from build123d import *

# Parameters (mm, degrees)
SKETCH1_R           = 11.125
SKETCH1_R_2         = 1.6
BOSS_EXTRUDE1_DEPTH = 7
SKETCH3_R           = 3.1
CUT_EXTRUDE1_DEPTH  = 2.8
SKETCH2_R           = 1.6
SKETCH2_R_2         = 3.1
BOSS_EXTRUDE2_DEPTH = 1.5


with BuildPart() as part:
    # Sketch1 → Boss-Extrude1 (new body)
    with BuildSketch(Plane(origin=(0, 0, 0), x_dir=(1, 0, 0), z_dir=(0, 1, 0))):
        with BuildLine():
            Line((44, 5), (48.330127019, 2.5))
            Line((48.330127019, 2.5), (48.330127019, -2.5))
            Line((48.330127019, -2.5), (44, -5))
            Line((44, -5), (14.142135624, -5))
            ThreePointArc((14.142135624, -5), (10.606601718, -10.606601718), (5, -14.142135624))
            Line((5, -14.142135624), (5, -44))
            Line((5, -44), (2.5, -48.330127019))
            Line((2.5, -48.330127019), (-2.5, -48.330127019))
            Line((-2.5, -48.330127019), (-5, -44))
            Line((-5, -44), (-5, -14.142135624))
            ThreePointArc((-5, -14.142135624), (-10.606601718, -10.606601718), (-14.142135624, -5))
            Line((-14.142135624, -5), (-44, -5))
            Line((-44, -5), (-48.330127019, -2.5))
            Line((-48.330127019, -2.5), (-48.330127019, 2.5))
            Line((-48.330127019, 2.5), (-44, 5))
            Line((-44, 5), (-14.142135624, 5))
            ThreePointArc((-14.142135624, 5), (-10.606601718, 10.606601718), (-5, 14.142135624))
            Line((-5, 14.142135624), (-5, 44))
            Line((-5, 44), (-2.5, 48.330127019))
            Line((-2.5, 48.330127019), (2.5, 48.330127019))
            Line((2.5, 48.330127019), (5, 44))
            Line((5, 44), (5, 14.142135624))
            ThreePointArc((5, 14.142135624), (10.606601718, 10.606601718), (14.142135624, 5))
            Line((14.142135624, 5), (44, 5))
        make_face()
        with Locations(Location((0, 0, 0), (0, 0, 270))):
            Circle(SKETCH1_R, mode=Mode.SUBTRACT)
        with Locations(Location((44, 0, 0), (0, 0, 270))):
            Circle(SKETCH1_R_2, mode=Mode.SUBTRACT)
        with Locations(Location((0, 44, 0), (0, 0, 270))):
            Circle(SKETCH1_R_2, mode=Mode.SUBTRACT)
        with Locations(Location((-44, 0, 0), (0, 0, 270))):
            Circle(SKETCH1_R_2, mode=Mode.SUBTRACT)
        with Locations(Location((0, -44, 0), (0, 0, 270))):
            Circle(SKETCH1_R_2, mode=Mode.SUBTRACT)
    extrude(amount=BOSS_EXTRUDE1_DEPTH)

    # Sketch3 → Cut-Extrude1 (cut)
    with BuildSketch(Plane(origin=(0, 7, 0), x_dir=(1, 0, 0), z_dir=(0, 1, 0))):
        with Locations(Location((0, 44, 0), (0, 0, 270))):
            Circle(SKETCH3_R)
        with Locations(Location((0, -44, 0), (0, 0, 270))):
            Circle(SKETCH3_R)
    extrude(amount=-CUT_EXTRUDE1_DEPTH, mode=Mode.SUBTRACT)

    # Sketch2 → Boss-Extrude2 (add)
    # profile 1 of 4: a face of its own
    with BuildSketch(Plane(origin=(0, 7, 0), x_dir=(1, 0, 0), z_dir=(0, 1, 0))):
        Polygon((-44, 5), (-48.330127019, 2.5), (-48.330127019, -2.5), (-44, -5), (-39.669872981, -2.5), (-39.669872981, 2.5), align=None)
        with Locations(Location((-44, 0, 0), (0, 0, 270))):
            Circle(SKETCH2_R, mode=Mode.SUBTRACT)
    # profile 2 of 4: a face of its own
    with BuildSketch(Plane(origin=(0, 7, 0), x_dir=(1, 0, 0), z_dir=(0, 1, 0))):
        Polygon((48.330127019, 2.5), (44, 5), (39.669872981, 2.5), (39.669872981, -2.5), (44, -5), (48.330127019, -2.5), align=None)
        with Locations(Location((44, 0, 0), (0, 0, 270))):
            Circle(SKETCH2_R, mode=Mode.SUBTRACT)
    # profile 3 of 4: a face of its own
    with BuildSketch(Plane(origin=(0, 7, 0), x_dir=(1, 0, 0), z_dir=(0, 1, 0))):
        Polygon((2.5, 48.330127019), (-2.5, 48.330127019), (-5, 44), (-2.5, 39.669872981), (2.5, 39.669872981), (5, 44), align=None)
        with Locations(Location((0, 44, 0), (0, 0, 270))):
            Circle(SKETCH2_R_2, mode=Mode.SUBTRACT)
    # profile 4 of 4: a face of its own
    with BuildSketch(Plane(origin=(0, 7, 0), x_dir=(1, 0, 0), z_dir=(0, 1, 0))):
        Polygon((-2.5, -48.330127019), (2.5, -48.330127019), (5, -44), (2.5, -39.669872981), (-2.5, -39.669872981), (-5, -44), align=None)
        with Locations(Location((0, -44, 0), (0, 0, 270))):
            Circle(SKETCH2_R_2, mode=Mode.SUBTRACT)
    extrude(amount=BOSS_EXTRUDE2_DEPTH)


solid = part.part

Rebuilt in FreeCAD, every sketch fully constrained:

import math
import FreeCAD as App
import Part
import Sketcher
from FreeCAD import Vector
Q = App.Units.Quantity


def add_polygon(sketch, points):
    """Adds a closed chain of lines whose ends are joined by coincident constraints."""
    first, n = sketch.GeometryCount, len(points)
    for a, b in zip(points, points[1:] + points[:1]):
        sketch.addGeometry(Part.LineSegment(App.Vector(*a, 0), App.Vector(*b, 0)), False)
    for i in range(n):
        sketch.addConstraint(Sketcher.Constraint("Coincident", first + i, 2, first + (i + 1) % n, 1))

doc = App.newDocument("Part")
params = doc.addObject("Spreadsheet::Sheet", "Params")
for row, (alias, value) in enumerate([
    ("sketch1_radius", "15 mm"),
    ("sketch1_diameter", "3.2 mm"),
    ("sketch1_diameter2", "22.25 mm"),
    ("sketch1_width", "5 mm"),
    ("sketch1_length", "5 mm"),
    ("pad1_length", "7 mm"),
    ("sketch2_diameter", "6.2 mm"),
    ("pocket1_length", "2.8 mm"),
    ("sketch3_diameter", "3.2 mm"),
    ("sketch3_diameter2", "6.2 mm"),
    ("sketch3_width", "5 mm"),
    ("sketch3_length", "5 mm"),
    ("pad2_length", "1.5 mm"),
], start=1):
    params.set(f"A{row}", alias)
    params.set(f"B{row}", "=" + value)
    params.setAlias(f"B{row}", alias)

body = doc.addObject("PartDesign::Body", "Body")

# Sketch on XZ plane
sketch1 = body.newObject("Sketcher::SketchObject", "Sketch")
sketch1.AttachmentSupport = (doc.getObject("XZ_Plane"), [""])
sketch1.MapMode = "FlatFace"
sketch1.addGeometry(Part.LineSegment(Vector(48.3, -2.5, 0), Vector(44, -5, 0)), False)
sketch1.addGeometry(Part.LineSegment(Vector(44, -5, 0), Vector(14.1, -5, 0)), False)
sketch1.addGeometry(Part.ArcOfCircle(Part.Circle(Vector(0, 0, 0), Vector(0, 0, 1), 15), math.radians(-71), math.radians(-19)), False)
sketch1.addGeometry(Part.LineSegment(Vector(5, -14.1, 0), Vector(5, -44, 0)), False)
sketch1.addGeometry(Part.LineSegment(Vector(5, -44, 0), Vector(2.5, -48.3, 0)), False)
sketch1.addGeometry(Part.LineSegment(Vector(2.5, -48.3, 0), Vector(-2.5, -48.3, 0)), False)
sketch1.addGeometry(Part.LineSegment(Vector(-2.5, -48.3, 0), Vector(-5, -44, 0)), False)
sketch1.addGeometry(Part.LineSegment(Vector(-5, -44, 0), Vector(-5, -14.1, 0)), False)
sketch1.addGeometry(Part.ArcOfCircle(Part.Circle(Vector(0, 0, 0), Vector(0, 0, 1), 15), math.radians(-161), math.radians(-109)), False)
sketch1.addGeometry(Part.LineSegment(Vector(-14.1, -5, 0), Vector(-44, -5, 0)), False)
sketch1.addGeometry(Part.LineSegment(Vector(-44, -5, 0), Vector(-48.3, -2.5, 0)), False)
sketch1.addGeometry(Part.LineSegment(Vector(-48.3, -2.5, 0), Vector(-48.3, 2.5, 0)), False)
sketch1.addGeometry(Part.LineSegment(Vector(-48.3, 2.5, 0), Vector(-44, 5, 0)), False)
sketch1.addGeometry(Part.LineSegment(Vector(-44, 5, 0), Vector(-14.1, 5, 0)), False)
sketch1.addGeometry(Part.ArcOfCircle(Part.Circle(Vector(0, 0, 0), Vector(0, 0, 1), 15), math.radians(109), math.radians(161)), False)
sketch1.addGeometry(Part.LineSegment(Vector(-5, 14.1, 0), Vector(-5, 44, 0)), False)
sketch1.addGeometry(Part.LineSegment(Vector(-5, 44, 0), Vector(-2.5, 48.3, 0)), False)
sketch1.addGeometry(Part.LineSegment(Vector(-2.5, 48.3, 0), Vector(2.5, 48.3, 0)), False)
sketch1.addGeometry(Part.LineSegment(Vector(2.5, 48.3, 0), Vector(5, 44, 0)), False)
sketch1.addGeometry(Part.LineSegment(Vector(5, 44, 0), Vector(5, 14.1, 0)), False)
sketch1.addGeometry(Part.ArcOfCircle(Part.Circle(Vector(0, 0, 0), Vector(0, 0, 1), 15), math.radians(19), math.radians(71)), False)
sketch1.addGeometry(Part.LineSegment(Vector(14.1, 5, 0), Vector(44, 5, 0)), False)
sketch1.addGeometry(Part.LineSegment(Vector(44, 5, 0), Vector(48.3, 2.5, 0)), False)
sketch1.addGeometry(Part.LineSegment(Vector(48.3, 2.5, 0), Vector(48.3, -2.5, 0)), False)
sketch1.addGeometry(Part.Circle(Vector(0, 44, 0), Vector(0, 0, 1), 1.6), False)
sketch1.addGeometry(Part.Circle(Vector(44, 0, 0), Vector(0, 0, 1), 1.6), False)
sketch1.addGeometry(Part.Circle(Vector(0, 0, 0), Vector(0, 0, 1), 11.1), False)
sketch1.addGeometry(Part.Circle(Vector(-44, 0, 0), Vector(0, 0, 1), 1.6), False)
sketch1.addGeometry(Part.Circle(Vector(0, -44, 0), Vector(0, 0, 1), 1.6), False)
sketch1.addConstraint(Sketcher.Constraint("Coincident", 0, 2, 1, 1))
sketch1.addConstraint(Sketcher.Constraint("Coincident", 1, 2, 2, 2))
sketch1.addConstraint(Sketcher.Constraint("Coincident", 2, 1, 3, 1))
sketch1.addConstraint(Sketcher.Constraint("Coincident", 3, 2, 4, 1))
sketch1.addConstraint(Sketcher.Constraint("Coincident", 4, 2, 5, 1))
sketch1.addConstraint(Sketcher.Constraint("Coincident", 5, 2, 6, 1))
sketch1.addConstraint(Sketcher.Constraint("Coincident", 6, 2, 7, 1))
sketch1.addConstraint(Sketcher.Constraint("Coincident", 7, 2, 8, 2))
sketch1.addConstraint(Sketcher.Constraint("Coincident", 8, 1, 9, 1))
sketch1.addConstraint(Sketcher.Constraint("Coincident", 9, 2, 10, 1))
sketch1.addConstraint(Sketcher.Constraint("Coincident", 10, 2, 11, 1))
sketch1.addConstraint(Sketcher.Constraint("Coincident", 11, 2, 12, 1))
sketch1.addConstraint(Sketcher.Constraint("Coincident", 12, 2, 13, 1))
sketch1.addConstraint(Sketcher.Constraint("Coincident", 13, 2, 14, 2))
sketch1.addConstraint(Sketcher.Constraint("Coincident", 14, 1, 15, 1))
sketch1.addConstraint(Sketcher.Constraint("Coincident", 15, 2, 16, 1))
sketch1.addConstraint(Sketcher.Constraint("Coincident", 16, 2, 17, 1))
sketch1.addConstraint(Sketcher.Constraint("Coincident", 17, 2, 18, 1))
sketch1.addConstraint(Sketcher.Constraint("Coincident", 18, 2, 19, 1))
sketch1.addConstraint(Sketcher.Constraint("Coincident", 19, 2, 20, 2))
sketch1.addConstraint(Sketcher.Constraint("Coincident", 20, 1, 21, 1))
sketch1.addConstraint(Sketcher.Constraint("Coincident", 21, 2, 22, 1))
sketch1.addConstraint(Sketcher.Constraint("Coincident", 22, 2, 23, 1))
sketch1.addConstraint(Sketcher.Constraint("Coincident", 23, 2, 0, 1))
sketch1.addConstraint(Sketcher.Constraint("Horizontal", 1))
sketch1.addConstraint(Sketcher.Constraint("Vertical", 3))
sketch1.addConstraint(Sketcher.Constraint("Horizontal", 5))
sketch1.addConstraint(Sketcher.Constraint("Vertical", 7))
sketch1.addConstraint(Sketcher.Constraint("Horizontal", 9))
sketch1.addConstraint(Sketcher.Constraint("Vertical", 11))
sketch1.addConstraint(Sketcher.Constraint("Horizontal", 13))
sketch1.addConstraint(Sketcher.Constraint("Vertical", 15))
sketch1.addConstraint(Sketcher.Constraint("Horizontal", 17))
sketch1.addConstraint(Sketcher.Constraint("Vertical", 19))
sketch1.addConstraint(Sketcher.Constraint("Horizontal", 21))
sketch1.addConstraint(Sketcher.Constraint("Vertical", 23))
sketch1.addConstraint(Sketcher.Constraint("Coincident", 2, 3, -1, 1))
sketch1.addConstraint(Sketcher.Constraint("Coincident", 8, 3, -1, 1))
sketch1.addConstraint(Sketcher.Constraint("Coincident", 14, 3, -1, 1))
sketch1.addConstraint(Sketcher.Constraint("Coincident", 20, 3, -1, 1))
sketch1.addConstraint(Sketcher.Constraint("Coincident", 26, 3, -1, 1))
sketch1.addConstraint(Sketcher.Constraint("Equal", 2, 8))
sketch1.addConstraint(Sketcher.Constraint("Equal", 8, 14))
sketch1.addConstraint(Sketcher.Constraint("Equal", 14, 20))
sketch1.addConstraint(Sketcher.Constraint("Equal", 24, 25))
sketch1.addConstraint(Sketcher.Constraint("Equal", 25, 27))
sketch1.addConstraint(Sketcher.Constraint("Equal", 27, 28))
sketch1.addConstraint(Sketcher.Constraint("Symmetric", 25, 3, 27, 3, -1, 1))
sketch1.addConstraint(Sketcher.Constraint("Symmetric", 24, 3, 28, 3, -1, 1))
sketch1.addConstraint(Sketcher.Constraint("Symmetric", 0, 2, 12, 2, -1, 1))
sketch1.addConstraint(Sketcher.Constraint("Symmetric", 3, 2, 15, 2, -1, 1))
sketch1.addConstraint(Sketcher.Constraint("Symmetric", 4, 2, 16, 2, -1, 1))
sketch1.addConstraint(Sketcher.Constraint("Symmetric", 6, 2, 18, 2, -1, 1))
sketch1.addConstraint(Sketcher.Constraint("Symmetric", 9, 2, 21, 2, -1, 1))
sketch1.addConstraint(Sketcher.Constraint("Symmetric", 10, 2, 22, 2, -1, 1))
sketch1.addConstraint(Sketcher.Constraint("Symmetric", 3, 2, 6, 2, -2))
sketch1.addConstraint(Sketcher.Constraint("Symmetric", 0, 2, 9, 2, -2))
sketch1.addConstraint(Sketcher.Constraint("PointOnObject", 24, 3, -2))
sketch1.addConstraint(Sketcher.Constraint("PointOnObject", 25, 3, -1))
sketch1.addConstraint(Sketcher.Constraint("Perpendicular", 0, 6))
sketch1.addConstraint(Sketcher.Constraint("Perpendicular", 4, 10))
sketch1.addConstraint(Sketcher.Constraint("Perpendicular", 6, 12))
sketch1.addConstraint(Sketcher.Constraint("Perpendicular", 12, 18))
sketch1.addConstraint(Sketcher.Constraint("Horizontal", 28, 3, 3, 2))
sketch1.addConstraint(Sketcher.Constraint("Horizontal", 11, 2, 22, 2))
sketch1.addConstraint(Sketcher.Constraint("Vertical", 25, 3, 0, 2))
sketch1.addConstraint(Sketcher.Constraint("Equal", 21, 3))
sketch1.addConstraint(Sketcher.Constraint("Equal", 17, 11))
sketch1.addConstraint(Sketcher.Constraint("Equal", 0, 4))
sketch1.addConstraint(Sketcher.Constraint("Radius", 2, 15.0))
sketch1.addConstraint(Sketcher.Constraint("Diameter", 24, 3.2))
sketch1.addConstraint(Sketcher.Constraint("Diameter", 26, 22.25))
sketch1.addConstraint(Sketcher.Constraint("DistanceX", 5, 2, 5, 1, 5.0))
sketch1.addConstraint(Sketcher.Constraint("Angle", 0, Q("-150 deg")))
sketch1.addConstraint(Sketcher.Constraint("Distance", 0, 5.0))
sketch1.addConstraint(Sketcher.Constraint("DistanceY", -1, 1, 24, 3, 44.0))
sketch1.setExpression("Constraints[69]", "Params.sketch1_radius")
sketch1.setExpression("Constraints[70]", "Params.sketch1_diameter")
sketch1.setExpression("Constraints[71]", "Params.sketch1_diameter2")
sketch1.setExpression("Constraints[72]", "Params.sketch1_width")
sketch1.setExpression("Constraints[74]", "Params.sketch1_length")
pad1 = body.newObject("PartDesign::Pad", "Pad")
pad1.Profile = sketch1
pad1.setExpression("Length", "Params.pad1_length")
pad1.Reversed = True

# Sketch on XZ plane
sketch2 = body.newObject("Sketcher::SketchObject", "Sketch001")
sketch2.AttachmentSupport = (doc.getObject("XZ_Plane"), [""])
sketch2.MapMode = "FlatFace"
sketch2.AttachmentOffset = App.Placement(Vector(0, 0, -7), App.Rotation())
sketch2.addGeometry(Part.Circle(Vector(0, -44, 0), Vector(0, 0, 1), 3.1), False)
sketch2.addGeometry(Part.Circle(Vector(0, 44, 0), Vector(0, 0, 1), 3.1), False)
sketch2.addConstraint(Sketcher.Constraint("Equal", 0, 1))
sketch2.addConstraint(Sketcher.Constraint("Symmetric", 0, 3, 1, 3, -1, 1))
sketch2.addConstraint(Sketcher.Constraint("PointOnObject", 0, 3, -2))
sketch2.addConstraint(Sketcher.Constraint("Diameter", 0, 6.2))
sketch2.addConstraint(Sketcher.Constraint("DistanceY", 0, 3, -1, 1, 44.0))
sketch2.setExpression("Constraints[3]", "Params.sketch2_diameter")
pocket1 = body.newObject("PartDesign::Pocket", "Pocket")
pocket1.Profile = sketch2
pocket1.setExpression("Length", "Params.pocket1_length")
pocket1.Reversed = True

# Sketch on XZ plane
sketch3 = body.newObject("Sketcher::SketchObject", "Sketch002")
sketch3.AttachmentSupport = (doc.getObject("XZ_Plane"), [""])
sketch3.MapMode = "FlatFace"
sketch3.AttachmentOffset = App.Placement(Vector(0, 0, -7), App.Rotation())
add_polygon(sketch3, [(-44, -5), (-48.3, -2.5), (-48.3, 2.5), (-44, 5), (-39.7, 2.5), (-39.7, -2.5)])  # lines 0-5
sketch3.addGeometry(Part.Circle(Vector(-44, 0, 0), Vector(0, 0, 1), 1.6), False)  # 6
add_polygon(sketch3, [(48.3, -2.5), (44, -5), (39.7, -2.5), (39.7, 2.5), (44, 5), (48.3, 2.5)])  # lines 7-12
sketch3.addGeometry(Part.Circle(Vector(44, 0, 0), Vector(0, 0, 1), 1.6), False)  # 13
add_polygon(sketch3, [(2.5, -48.3), (-2.5, -48.3), (-5, -44), (-2.5, -39.7), (2.5, -39.7), (5, -44)])  # lines 14-19
sketch3.addGeometry(Part.Circle(Vector(0, -44, 0), Vector(0, 0, 1), 3.1), False)  # 20
add_polygon(sketch3, [(-2.5, 48.3), (2.5, 48.3), (5, 44), (2.5, 39.7), (-2.5, 39.7), (-5, 44)])  # lines 21-26
sketch3.addGeometry(Part.Circle(Vector(0, 44, 0), Vector(0, 0, 1), 3.1), False)  # 27
sketch3.addConstraint(Sketcher.Constraint("Vertical", 1))
sketch3.addConstraint(Sketcher.Constraint("Vertical", 4))
sketch3.addConstraint(Sketcher.Constraint("Vertical", 9))
sketch3.addConstraint(Sketcher.Constraint("Vertical", 12))
sketch3.addConstraint(Sketcher.Constraint("Horizontal", 14))
sketch3.addConstraint(Sketcher.Constraint("Horizontal", 17))
sketch3.addConstraint(Sketcher.Constraint("Horizontal", 21))
sketch3.addConstraint(Sketcher.Constraint("Horizontal", 24))
sketch3.addConstraint(Sketcher.Constraint("Equal", 6, 13))
sketch3.addConstraint(Sketcher.Constraint("Equal", 20, 27))
sketch3.addConstraint(Sketcher.Constraint("Symmetric", 6, 3, 13, 3, -1, 1))
sketch3.addConstraint(Sketcher.Constraint("Symmetric", 20, 3, 27, 3, -1, 1))
sketch3.addConstraint(Sketcher.Constraint("Symmetric", 2, 2, 7, 2, -1, 1))
sketch3.addConstraint(Sketcher.Constraint("Symmetric", 3, 2, 8, 2, -1, 1))
sketch3.addConstraint(Sketcher.Constraint("Symmetric", 5, 2, 10, 2, -1, 1))
sketch3.addConstraint(Sketcher.Constraint("Symmetric", 0, 2, 11, 2, -1, 1))
sketch3.addConstraint(Sketcher.Constraint("Symmetric", 14, 2, 21, 2, -1, 1))
sketch3.addConstraint(Sketcher.Constraint("Symmetric", 15, 2, 22, 2, -1, 1))
sketch3.addConstraint(Sketcher.Constraint("Symmetric", 16, 2, 23, 2, -1, 1))
sketch3.addConstraint(Sketcher.Constraint("Symmetric", 18, 2, 25, 2, -1, 1))
sketch3.addConstraint(Sketcher.Constraint("Symmetric", 5, 2, 7, 2, -2))
sketch3.addConstraint(Sketcher.Constraint("Symmetric", 15, 2, 18, 2, -2))
sketch3.addConstraint(Sketcher.Constraint("PointOnObject", 6, 3, -1))
sketch3.addConstraint(Sketcher.Constraint("PointOnObject", 20, 3, -2))
sketch3.addConstraint(Sketcher.Constraint("Parallel", 0, 3))
sketch3.addConstraint(Sketcher.Constraint("Parallel", 2, 5))
sketch3.addConstraint(Sketcher.Constraint("Parallel", 5, 7))
sketch3.addConstraint(Sketcher.Constraint("Parallel", 7, 10))
sketch3.addConstraint(Sketcher.Constraint("Perpendicular", 10, 15))
sketch3.addConstraint(Sketcher.Constraint("Perpendicular", 11, 16))
sketch3.addConstraint(Sketcher.Constraint("Parallel", 15, 18))
sketch3.addConstraint(Sketcher.Constraint("Parallel", 16, 19))
sketch3.addConstraint(Sketcher.Constraint("Parallel", 22, 25))
sketch3.addConstraint(Sketcher.Constraint("Parallel", 23, 26))
sketch3.addConstraint(Sketcher.Constraint("Horizontal", 1, 2, 3, 2))
sketch3.addConstraint(Sketcher.Constraint("Horizontal", 0, 2, 4, 2))
sketch3.addConstraint(Sketcher.Constraint("Horizontal", 20, 3, 15, 2))
sketch3.addConstraint(Sketcher.Constraint("Vertical", 6, 3, 2, 2))
sketch3.addConstraint(Sketcher.Constraint("Vertical", 14, 2, 16, 2))
sketch3.addConstraint(Sketcher.Constraint("Equal", 24, 1))
sketch3.addConstraint(Sketcher.Constraint("Equal", 11, 15))
sketch3.addConstraint(Sketcher.Constraint("Diameter", 6, 3.2))
sketch3.addConstraint(Sketcher.Constraint("Diameter", 20, 6.2))
sketch3.addConstraint(Sketcher.Constraint("DistanceX", 14, 2, 14, 1, 5.0))
sketch3.addConstraint(Sketcher.Constraint("Angle", 0, Q("150 deg")))
sketch3.addConstraint(Sketcher.Constraint("Distance", 0, 5.0))
sketch3.addConstraint(Sketcher.Constraint("DistanceX", 6, 3, -1, 1, 44.0))
sketch3.addConstraint(Sketcher.Constraint("DistanceY", 20, 3, -1, 1, 44.0))
sketch3.setExpression("Constraints[65]", "Params.sketch3_diameter")
sketch3.setExpression("Constraints[66]", "Params.sketch3_diameter2")
sketch3.setExpression("Constraints[67]", "Params.sketch3_width")
sketch3.setExpression("Constraints[69]", "Params.sketch3_length")
pad2 = body.newObject("PartDesign::Pad", "Pad001")
pad2.Profile = sketch3
pad2.setExpression("Length", "Params.pad2_length")
pad2.Reversed = True

doc.recompute()
